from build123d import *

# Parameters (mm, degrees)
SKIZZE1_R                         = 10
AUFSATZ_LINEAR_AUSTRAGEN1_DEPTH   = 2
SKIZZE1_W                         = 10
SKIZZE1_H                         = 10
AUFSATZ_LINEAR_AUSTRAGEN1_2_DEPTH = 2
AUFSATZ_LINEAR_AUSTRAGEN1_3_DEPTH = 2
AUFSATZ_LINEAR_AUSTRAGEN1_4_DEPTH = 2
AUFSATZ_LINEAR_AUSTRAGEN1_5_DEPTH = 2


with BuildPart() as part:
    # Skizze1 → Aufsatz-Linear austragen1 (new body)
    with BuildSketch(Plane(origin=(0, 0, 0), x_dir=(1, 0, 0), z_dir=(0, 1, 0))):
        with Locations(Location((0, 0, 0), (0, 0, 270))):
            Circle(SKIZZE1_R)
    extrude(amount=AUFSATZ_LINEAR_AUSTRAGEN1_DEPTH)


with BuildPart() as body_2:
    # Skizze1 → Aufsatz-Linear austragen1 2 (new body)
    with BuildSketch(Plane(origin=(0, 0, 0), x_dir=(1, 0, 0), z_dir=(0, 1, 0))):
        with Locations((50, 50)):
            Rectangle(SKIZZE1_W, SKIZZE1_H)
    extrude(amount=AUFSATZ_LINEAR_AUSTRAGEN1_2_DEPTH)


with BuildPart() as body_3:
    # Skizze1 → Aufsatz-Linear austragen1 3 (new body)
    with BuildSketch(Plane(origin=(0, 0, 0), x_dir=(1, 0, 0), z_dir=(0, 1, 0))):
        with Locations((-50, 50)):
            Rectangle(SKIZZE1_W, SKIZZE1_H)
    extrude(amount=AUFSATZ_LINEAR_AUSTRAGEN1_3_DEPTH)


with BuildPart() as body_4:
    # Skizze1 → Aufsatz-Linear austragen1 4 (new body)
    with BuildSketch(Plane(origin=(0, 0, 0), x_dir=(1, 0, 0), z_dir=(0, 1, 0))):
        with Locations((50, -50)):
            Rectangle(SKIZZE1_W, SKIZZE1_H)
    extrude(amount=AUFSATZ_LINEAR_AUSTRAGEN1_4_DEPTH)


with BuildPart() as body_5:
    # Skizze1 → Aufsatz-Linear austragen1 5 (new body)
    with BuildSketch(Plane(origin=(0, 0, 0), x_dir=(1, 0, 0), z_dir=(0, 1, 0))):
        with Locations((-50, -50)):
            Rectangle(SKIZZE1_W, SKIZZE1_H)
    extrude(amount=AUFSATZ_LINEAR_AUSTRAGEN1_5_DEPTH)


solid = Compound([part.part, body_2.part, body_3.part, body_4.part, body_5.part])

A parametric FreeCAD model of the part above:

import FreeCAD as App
import Part
import Sketcher

V = App.Vector


def add_polygon(sketch, points):
    """Adds a closed chain of lines whose ends are joined by coincident constraints."""
    first, n = sketch.GeometryCount, len(points)
    for a, b in zip(points, points[1:] + points[:1]):
        sketch.addGeometry(Part.LineSegment(App.Vector(*a, 0), App.Vector(*b, 0)), False)
    for i in range(n):
        sketch.addConstraint(Sketcher.Constraint("Coincident", first + i, 2, first + (i + 1) % n, 1))

doc = App.newDocument("Part")
body = doc.addObject("PartDesign::Body", "Body")

sketch1 = body.newObject("Sketcher::SketchObject", "Sketch")
sketch1.AttachmentSupport = (doc.getObject("XZ_Plane"), [""])
sketch1.MapMode = "FlatFace"
sketch1.addGeometry(Part.Circle(V(0, 0, 0), V(0, 0, 1), 10), False)
sketch1.addConstraint([
    Sketcher.Constraint("Coincident", 0, 3, -1, 1),
    Sketcher.Constraint("Diameter", 0, 20.0),
])
pad1 = body.newObject("PartDesign::Pad", "Pad")
pad1.Profile = sketch1
pad1.Length = 2
pad1.Reversed = True
body2 = doc.addObject("PartDesign::Body", "Body001")

sketch2 = body2.newObject("Sketcher::SketchObject", "Sketch001")
sketch2.AttachmentSupport = (doc.getObject("XZ_Plane001"), [""])
sketch2.MapMode = "FlatFace"
add_polygon(sketch2, [(45, -55), (45, -45), (55, -45), (55, -55)])
sketch2.addConstraint([
    Sketcher.Constraint("Vertical", 0),
    Sketcher.Constraint("Horizontal", 1),
    Sketcher.Constraint("Vertical", 2),
    Sketcher.Constraint("Horizontal", 3),
    Sketcher.Constraint("Equal", 3, 0),
    Sketcher.Constraint("DistanceX", 1, 1, 1, 2, 10.0),
    Sketcher.Constraint("DistanceX", -1, 1, 0, 2, 45.0),
    Sketcher.Constraint("DistanceY", 0, 2, -1, 1, 45.0),
])
pad2 = body2.newObject("PartDesign::Pad", "Pad001")
pad2.Profile = sketch2
pad2.Length = 2
pad2.Reversed = True
body3 = doc.addObject("PartDesign::Body", "Body002")

sketch3 = body3.newObject("Sketcher::SketchObject", "Sketch002")
sketch3.AttachmentSupport = (doc.getObject("XZ_Plane002"), [""])
sketch3.MapMode = "FlatFace"
add_polygon(sketch3, [(-55, -55), (-55, -45), (-45, -45), (-45, -55)])
sketch3.addConstraint([
    Sketcher.Constraint("Vertical", 0),
    Sketcher.Constraint("Horizontal", 1),
    Sketcher.Constraint("Vertical", 2),
    Sketcher.Constraint("Horizontal", 3),
    Sketcher.Constraint("Equal", 3, 0),
    Sketcher.Constraint("DistanceX", 1, 1, 1, 2, 10.0),
    Sketcher.Constraint("DistanceX", 0, 2, -1, 1, 55.0),
    Sketcher.Constraint("DistanceY", 0, 2, -1, 1, 45.0),
])
pad3 = body3.newObject("PartDesign::Pad", "Pad002")
pad3.Profile = sketch3
pad3.Length = 2
pad3.Reversed = True
body4 = doc.addObject("PartDesign::Body", "Body003")

sketch4 = body4.newObject("Sketcher::SketchObject", "Sketch003")
sketch4.AttachmentSupport = (doc.getObject("XZ_Plane003"), [""])
sketch4.MapMode = "FlatFace"
add_polygon(sketch4, [(45, 45), (45, 55), (55, 55), (55, 45)])
sketch4.addConstraint([
    Sketcher.Constraint("Vertical", 0),
    Sketcher.Constraint("Horizontal", 1),
    Sketcher.Constraint("Vertical", 2),
    Sketcher.Constraint("Horizontal", 3),
    Sketcher.Constraint("Equal", 3, 0),
    Sketcher.Constraint("DistanceX", 1, 1, 1, 2, 10.0),
    Sketcher.Constraint("DistanceX", -1, 1, 0, 2, 45.0),
    Sketcher.Constraint("DistanceY", -1, 1, 0, 2, 55.0),
])
pad4 = body4.newObject("PartDesign::Pad", "Pad003")
pad4.Profile = sketch4
pad4.Length = 2
pad4.Reversed = True
body5 = doc.addObject("PartDesign::Body", "Body004")

sketch5 = body5.newObject("Sketcher::SketchObject", "Sketch004")
sketch5.AttachmentSupport = (doc.getObject("XZ_Plane004"), [""])
sketch5.MapMode = "FlatFace"
add_polygon(sketch5, [(-55, 45), (-55, 55), (-45, 55), (-45, 45)])
sketch5.addConstraint([
    Sketcher.Constraint("Vertical", 0),
    Sketcher.Constraint("Horizontal", 1),
    Sketcher.Constraint("Vertical", 2),
    Sketcher.Constraint("Horizontal", 3),
    Sketcher.Constraint("Equal", 3, 0),
    Sketcher.Constraint("DistanceX", 1, 1, 1, 2, 10.0),
    Sketcher.Constraint("DistanceX", 0, 2, -1, 1, 55.0),
    Sketcher.Constraint("DistanceY", -1, 1, 0, 2, 55.0),
])
pad5 = body5.newObject("PartDesign::Pad", "Pad004")
pad5.Profile = sketch5
pad5.Length = 2
pad5.Reversed = True

doc.recompute()
